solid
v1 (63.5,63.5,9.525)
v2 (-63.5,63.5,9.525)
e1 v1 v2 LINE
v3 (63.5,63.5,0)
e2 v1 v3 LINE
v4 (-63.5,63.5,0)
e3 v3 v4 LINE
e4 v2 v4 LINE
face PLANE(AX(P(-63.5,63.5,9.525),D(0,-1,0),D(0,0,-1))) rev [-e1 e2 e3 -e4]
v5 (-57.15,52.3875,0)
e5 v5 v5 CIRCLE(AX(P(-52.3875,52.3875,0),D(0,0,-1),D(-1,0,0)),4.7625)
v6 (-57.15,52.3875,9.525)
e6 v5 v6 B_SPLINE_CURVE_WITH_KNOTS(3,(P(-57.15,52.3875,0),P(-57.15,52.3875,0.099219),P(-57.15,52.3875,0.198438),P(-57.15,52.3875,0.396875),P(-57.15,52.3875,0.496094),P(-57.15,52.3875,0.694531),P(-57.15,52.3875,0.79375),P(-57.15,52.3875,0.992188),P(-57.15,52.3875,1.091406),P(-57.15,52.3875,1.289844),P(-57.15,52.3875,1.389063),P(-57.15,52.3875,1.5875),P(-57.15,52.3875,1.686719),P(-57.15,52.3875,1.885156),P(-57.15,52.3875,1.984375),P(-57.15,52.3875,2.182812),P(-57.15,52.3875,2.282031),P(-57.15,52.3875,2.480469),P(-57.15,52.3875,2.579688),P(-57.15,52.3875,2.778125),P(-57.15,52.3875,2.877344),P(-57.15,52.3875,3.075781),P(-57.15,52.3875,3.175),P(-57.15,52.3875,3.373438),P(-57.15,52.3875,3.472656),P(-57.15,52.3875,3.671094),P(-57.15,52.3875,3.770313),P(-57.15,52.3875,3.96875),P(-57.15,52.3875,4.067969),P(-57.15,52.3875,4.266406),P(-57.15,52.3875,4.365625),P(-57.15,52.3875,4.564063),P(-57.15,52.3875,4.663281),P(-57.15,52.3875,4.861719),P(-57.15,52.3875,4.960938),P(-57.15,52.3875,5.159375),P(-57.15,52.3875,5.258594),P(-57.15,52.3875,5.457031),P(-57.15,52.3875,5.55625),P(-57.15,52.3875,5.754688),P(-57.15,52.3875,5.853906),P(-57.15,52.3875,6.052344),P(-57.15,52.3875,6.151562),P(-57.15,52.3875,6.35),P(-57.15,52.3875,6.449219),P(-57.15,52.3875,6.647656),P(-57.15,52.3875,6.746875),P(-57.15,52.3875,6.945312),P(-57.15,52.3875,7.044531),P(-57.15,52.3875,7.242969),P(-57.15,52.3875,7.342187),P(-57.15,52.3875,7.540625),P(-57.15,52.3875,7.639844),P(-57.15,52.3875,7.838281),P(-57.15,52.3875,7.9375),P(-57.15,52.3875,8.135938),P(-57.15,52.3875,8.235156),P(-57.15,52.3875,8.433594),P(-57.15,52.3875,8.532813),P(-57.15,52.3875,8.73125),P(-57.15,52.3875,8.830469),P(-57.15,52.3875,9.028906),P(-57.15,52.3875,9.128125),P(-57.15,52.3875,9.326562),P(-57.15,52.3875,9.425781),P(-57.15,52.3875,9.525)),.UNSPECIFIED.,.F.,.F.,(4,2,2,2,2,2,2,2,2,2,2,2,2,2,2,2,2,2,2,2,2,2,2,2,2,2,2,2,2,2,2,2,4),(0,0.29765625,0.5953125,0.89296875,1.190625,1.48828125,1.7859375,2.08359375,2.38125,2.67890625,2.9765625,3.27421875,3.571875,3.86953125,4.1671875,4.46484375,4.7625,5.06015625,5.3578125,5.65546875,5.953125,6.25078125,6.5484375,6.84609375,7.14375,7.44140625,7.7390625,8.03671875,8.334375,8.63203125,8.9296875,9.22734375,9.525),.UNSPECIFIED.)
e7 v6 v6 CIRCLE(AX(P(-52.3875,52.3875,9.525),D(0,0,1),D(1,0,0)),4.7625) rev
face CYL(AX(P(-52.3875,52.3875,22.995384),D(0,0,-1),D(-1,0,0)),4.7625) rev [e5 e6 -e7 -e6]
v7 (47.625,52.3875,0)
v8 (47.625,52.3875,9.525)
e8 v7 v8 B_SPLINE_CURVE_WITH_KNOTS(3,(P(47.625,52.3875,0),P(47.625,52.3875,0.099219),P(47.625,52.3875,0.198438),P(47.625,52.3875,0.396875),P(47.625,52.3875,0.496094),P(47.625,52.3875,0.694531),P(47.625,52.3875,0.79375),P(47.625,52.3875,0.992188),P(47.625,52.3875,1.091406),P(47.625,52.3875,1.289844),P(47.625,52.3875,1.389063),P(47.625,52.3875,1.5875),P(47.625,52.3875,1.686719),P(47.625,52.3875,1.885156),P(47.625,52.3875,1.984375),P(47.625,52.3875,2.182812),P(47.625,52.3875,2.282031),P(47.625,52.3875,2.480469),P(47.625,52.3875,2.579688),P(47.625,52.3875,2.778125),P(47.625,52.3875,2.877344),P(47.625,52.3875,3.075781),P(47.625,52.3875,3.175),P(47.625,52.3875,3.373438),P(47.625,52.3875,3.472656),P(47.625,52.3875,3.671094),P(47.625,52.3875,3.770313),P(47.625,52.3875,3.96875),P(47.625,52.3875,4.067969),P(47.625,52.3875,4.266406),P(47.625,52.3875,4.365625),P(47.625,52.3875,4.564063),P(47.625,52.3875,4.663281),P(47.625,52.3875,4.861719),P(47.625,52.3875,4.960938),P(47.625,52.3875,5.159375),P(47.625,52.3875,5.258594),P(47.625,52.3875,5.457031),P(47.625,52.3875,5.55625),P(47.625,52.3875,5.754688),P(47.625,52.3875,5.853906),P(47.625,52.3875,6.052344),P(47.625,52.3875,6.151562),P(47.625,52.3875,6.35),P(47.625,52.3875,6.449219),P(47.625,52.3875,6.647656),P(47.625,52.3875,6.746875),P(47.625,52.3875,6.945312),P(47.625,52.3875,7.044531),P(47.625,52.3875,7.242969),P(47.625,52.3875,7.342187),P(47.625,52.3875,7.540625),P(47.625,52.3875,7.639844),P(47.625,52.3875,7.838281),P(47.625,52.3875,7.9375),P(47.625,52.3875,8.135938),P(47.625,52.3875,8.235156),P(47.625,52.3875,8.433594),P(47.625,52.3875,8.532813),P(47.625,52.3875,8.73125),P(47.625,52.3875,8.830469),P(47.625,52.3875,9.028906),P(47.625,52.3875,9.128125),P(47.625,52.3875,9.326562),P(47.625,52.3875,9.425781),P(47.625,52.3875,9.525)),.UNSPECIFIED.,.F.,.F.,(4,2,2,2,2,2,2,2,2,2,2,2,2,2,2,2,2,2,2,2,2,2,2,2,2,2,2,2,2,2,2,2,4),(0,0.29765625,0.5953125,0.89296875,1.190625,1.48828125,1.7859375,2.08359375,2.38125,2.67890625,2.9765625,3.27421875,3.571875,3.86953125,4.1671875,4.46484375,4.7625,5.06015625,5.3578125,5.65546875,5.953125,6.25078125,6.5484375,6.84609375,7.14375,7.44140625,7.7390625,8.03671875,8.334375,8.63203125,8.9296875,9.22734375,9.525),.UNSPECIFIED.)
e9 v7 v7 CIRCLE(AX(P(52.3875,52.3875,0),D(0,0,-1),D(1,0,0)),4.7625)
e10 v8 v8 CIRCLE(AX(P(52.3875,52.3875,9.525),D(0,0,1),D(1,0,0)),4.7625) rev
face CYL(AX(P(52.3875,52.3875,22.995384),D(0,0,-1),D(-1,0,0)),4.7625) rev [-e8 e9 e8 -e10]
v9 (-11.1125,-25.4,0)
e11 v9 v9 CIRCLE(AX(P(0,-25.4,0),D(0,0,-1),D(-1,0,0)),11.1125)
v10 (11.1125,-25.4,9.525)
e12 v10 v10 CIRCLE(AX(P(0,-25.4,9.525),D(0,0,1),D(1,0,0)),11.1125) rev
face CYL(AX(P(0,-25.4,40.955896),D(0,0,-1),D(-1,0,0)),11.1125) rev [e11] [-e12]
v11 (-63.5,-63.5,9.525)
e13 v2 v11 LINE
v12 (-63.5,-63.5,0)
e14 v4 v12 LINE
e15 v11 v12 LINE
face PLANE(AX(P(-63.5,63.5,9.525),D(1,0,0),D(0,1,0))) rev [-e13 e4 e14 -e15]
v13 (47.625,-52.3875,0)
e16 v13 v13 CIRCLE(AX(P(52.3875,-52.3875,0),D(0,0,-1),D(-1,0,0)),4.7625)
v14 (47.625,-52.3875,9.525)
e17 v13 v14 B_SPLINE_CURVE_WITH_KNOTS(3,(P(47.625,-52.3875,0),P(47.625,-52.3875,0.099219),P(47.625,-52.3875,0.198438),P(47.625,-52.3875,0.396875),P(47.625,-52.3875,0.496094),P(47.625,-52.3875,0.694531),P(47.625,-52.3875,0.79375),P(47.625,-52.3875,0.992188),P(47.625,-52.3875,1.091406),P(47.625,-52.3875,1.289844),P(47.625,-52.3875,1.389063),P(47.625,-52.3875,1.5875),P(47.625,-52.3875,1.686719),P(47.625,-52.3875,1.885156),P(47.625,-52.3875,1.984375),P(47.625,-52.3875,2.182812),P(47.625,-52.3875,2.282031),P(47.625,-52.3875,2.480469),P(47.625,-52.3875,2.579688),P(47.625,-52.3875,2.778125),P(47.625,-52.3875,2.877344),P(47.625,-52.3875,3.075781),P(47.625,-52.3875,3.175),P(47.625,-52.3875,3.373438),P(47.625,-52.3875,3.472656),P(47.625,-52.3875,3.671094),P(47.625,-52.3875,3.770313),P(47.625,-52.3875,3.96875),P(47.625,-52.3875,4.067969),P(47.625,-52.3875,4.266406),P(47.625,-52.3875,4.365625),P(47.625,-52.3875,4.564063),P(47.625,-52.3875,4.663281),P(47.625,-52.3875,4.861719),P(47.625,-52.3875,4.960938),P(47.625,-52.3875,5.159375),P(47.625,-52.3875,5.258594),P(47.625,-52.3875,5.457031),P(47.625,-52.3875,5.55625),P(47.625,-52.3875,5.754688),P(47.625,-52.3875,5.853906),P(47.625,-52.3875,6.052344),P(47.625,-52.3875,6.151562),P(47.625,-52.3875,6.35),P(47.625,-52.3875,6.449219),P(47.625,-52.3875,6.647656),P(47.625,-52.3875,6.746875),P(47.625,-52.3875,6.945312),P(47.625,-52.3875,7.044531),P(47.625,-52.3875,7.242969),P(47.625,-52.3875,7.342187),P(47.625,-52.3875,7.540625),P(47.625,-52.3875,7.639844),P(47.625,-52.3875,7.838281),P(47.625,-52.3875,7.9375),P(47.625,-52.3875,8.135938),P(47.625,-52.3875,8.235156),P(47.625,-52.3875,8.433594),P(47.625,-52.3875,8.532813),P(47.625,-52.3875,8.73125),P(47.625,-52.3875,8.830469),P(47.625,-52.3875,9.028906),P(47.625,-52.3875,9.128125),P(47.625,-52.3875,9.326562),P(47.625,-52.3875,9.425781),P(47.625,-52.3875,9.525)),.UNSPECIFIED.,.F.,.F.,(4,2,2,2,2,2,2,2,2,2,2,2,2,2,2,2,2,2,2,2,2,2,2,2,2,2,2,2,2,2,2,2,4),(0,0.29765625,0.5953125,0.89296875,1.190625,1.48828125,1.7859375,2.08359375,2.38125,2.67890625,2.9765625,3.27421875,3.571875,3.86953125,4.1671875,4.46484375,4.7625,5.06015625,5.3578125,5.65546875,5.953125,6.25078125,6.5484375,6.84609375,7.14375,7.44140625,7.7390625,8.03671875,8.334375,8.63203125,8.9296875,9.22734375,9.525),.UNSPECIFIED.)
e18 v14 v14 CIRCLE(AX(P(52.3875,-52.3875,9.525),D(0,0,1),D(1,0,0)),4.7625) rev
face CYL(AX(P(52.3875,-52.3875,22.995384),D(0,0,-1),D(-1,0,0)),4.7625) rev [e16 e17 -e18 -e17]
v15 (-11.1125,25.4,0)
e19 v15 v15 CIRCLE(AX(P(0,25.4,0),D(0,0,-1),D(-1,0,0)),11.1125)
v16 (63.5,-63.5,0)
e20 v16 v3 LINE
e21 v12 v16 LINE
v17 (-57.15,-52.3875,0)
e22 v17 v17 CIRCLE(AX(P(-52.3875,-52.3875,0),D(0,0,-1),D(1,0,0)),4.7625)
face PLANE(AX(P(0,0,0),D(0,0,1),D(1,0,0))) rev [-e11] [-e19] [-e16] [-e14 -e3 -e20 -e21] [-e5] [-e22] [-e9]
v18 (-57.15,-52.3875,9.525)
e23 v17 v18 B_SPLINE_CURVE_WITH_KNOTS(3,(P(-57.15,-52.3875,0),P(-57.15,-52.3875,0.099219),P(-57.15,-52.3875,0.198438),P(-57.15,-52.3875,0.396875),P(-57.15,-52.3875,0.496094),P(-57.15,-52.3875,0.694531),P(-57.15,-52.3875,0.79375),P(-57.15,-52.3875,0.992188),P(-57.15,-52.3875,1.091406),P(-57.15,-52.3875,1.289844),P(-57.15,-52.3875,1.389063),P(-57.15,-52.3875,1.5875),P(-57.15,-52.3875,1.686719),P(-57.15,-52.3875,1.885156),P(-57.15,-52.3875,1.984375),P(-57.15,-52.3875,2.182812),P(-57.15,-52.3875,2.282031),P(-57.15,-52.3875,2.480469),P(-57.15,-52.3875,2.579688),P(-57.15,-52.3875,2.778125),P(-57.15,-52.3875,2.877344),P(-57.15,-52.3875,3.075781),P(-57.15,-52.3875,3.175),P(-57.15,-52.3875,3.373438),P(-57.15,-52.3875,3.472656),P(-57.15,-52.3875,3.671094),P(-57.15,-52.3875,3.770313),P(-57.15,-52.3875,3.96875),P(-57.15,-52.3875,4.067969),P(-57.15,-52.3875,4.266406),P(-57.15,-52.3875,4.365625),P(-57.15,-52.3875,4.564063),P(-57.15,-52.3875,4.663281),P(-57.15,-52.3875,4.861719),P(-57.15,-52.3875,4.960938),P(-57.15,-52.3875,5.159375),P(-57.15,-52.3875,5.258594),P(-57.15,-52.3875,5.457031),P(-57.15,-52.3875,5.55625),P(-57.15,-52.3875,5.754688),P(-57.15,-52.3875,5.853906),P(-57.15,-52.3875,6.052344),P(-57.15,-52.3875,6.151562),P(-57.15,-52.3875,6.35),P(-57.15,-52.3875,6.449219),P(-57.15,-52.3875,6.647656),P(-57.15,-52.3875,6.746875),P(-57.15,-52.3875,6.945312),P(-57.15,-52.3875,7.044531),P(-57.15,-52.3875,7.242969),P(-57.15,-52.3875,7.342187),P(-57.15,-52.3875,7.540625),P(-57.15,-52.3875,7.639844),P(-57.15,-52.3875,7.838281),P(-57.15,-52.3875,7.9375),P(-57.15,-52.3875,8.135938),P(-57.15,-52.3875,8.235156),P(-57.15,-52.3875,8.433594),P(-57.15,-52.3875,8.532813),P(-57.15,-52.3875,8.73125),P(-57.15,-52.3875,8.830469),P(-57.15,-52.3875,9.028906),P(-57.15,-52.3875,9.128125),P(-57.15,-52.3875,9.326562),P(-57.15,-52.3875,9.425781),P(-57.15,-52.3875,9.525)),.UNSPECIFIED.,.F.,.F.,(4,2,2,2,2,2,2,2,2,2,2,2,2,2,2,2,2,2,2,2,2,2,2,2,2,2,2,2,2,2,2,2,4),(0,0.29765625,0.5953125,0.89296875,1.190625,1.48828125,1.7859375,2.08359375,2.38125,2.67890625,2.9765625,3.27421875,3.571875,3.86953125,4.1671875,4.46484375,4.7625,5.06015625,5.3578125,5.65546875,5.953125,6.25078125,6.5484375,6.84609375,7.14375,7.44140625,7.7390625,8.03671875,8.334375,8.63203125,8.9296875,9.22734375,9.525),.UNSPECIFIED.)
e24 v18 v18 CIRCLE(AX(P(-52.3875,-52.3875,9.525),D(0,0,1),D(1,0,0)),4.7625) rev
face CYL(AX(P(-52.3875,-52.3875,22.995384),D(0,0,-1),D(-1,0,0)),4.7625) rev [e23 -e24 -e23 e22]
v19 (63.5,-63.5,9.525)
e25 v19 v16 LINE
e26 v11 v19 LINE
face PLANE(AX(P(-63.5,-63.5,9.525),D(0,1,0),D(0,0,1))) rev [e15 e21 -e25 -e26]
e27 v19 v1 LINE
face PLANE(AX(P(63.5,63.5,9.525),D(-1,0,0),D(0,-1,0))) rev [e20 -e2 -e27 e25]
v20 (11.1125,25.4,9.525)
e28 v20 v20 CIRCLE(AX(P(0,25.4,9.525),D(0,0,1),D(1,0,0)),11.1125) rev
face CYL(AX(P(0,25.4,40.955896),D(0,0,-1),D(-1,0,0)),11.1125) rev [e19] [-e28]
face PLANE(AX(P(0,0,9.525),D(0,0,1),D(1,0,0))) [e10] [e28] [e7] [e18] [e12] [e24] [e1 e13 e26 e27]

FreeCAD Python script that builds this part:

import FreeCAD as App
import Part
import Sketcher
Q = App.Units.Quantity


def add_polygon(sketch, points):
    """Adds a closed chain of lines whose ends are joined by coincident constraints."""
    first, n = sketch.GeometryCount, len(points)
    for a, b in zip(points, points[1:] + points[:1]):
        sketch.addGeometry(Part.LineSegment(App.Vector(*a, 0), App.Vector(*b, 0)), False)
    for i in range(n):
        sketch.addConstraint(Sketcher.Constraint("Coincident", first + i, 2, first + (i + 1) % n, 1))

doc = App.newDocument("Part")
body = doc.addObject("PartDesign::Body", "Body")

# Sketch on XY plane
sketch1 = doc.addObject("Sketcher::SketchObject", "Sketch")
body.addObject(sketch1)
sketch1.AttachmentSupport = (doc.XY_Plane, [""])
sketch1.MapMode = "FlatFace"
add_polygon(sketch1, [(-64, 64), (-64, -64), (64, -64), (64, 64)])  # lines 0-3
sketch1.addConstraint([
    Sketcher.Constraint("Vertical", 0),
    Sketcher.Constraint("Horizontal", 1),
    Sketcher.Constraint("Vertical", 2),
    Sketcher.Constraint("Horizontal", 3),
    Sketcher.Constraint("Symmetric", 0, 2, 2, 2, -1, 1),
    Sketcher.Constraint("Equal", 3, 0),
    Sketcher.Constraint("DistanceX", 1, 1, 1, 2, Q("5 in")),
])
pad1 = doc.addObject("PartDesign::Pad", "Pad")
body.addObject(pad1)
pad1.Profile = sketch1
pad1.Length = Q("0.375 in")

# Sketch on XY plane
sketch2 = doc.addObject("Sketcher::SketchObject", "Sketch001")
body.addObject(sketch2)
sketch2.AttachmentSupport = (doc.XY_Plane, [""])
sketch2.MapMode = "FlatFace"
sketch2.addGeometry([
    Part.Circle(App.Vector(0, 25, 0), App.Vector(0, 0, 1), 11),
    Part.Circle(App.Vector(0, -25, 0), App.Vector(0, 0, 1), 11),
], False)
sketch2.addConstraint([
    Sketcher.Constraint("Equal", 0, 1),
    Sketcher.Constraint("Symmetric", 0, 3, 1, 3, -1, 1),
    Sketcher.Constraint("PointOnObject", 0, 3, -2),
    Sketcher.Constraint("Diameter", 0, Q("0.875 in")),
    Sketcher.Constraint("DistanceY", -1, 1, 0, 3, Q("1 in")),
])
pocket1 = doc.addObject("PartDesign::Pocket", "Pocket")
body.addObject(pocket1)
pocket1.Profile = sketch2
pocket1.Length = Q("0.375 in")
pocket1.Reversed = True

# Sketch on XY plane
sketch3 = doc.addObject("Sketcher::SketchObject", "Sketch002")
body.addObject(sketch3)
sketch3.AttachmentSupport = (doc.XY_Plane, [""])
sketch3.MapMode = "FlatFace"
sketch3.addGeometry([
    Part.Circle(App.Vector(-52.4, 52.4, 0), App.Vector(0, 0, 1), 4.8),
    Part.Circle(App.Vector(-52.4, -52.4, 0), App.Vector(0, 0, 1), 4.8),
    Part.Circle(App.Vector(52.4, 52.4, 0), App.Vector(0, 0, 1), 4.8),
    Part.Circle(App.Vector(52.4, -52.4, 0), App.Vector(0, 0, 1), 4.8),
], False)
sketch3.addConstraint([
    Sketcher.Constraint("Equal", 0, 1),
    Sketcher.Constraint("Equal", 1, 2),
    Sketcher.Constraint("Equal", 2, 3),
    Sketcher.Constraint("Symmetric", 1, 3, 2, 3, -1, 1),
    Sketcher.Constraint("Symmetric", 0, 3, 3, 3, -1, 1),
    Sketcher.Constraint("Symmetric", 0, 3, 2, 3, -2),
    Sketcher.Constraint("Diameter", 0, Q("0.375 in")),
    Sketcher.Constraint("DistanceX", 0, 3, -1, 1, Q("2.0625 in")),
    Sketcher.Constraint("DistanceY", -1, 1, 0, 3, Q("2.0625 in")),
])
pocket2 = doc.addObject("PartDesign::Pocket", "Pocket001")
body.addObject(pocket2)
pocket2.Profile = sketch3
pocket2.Length = Q("0.375 in")
pocket2.Reversed = True

doc.recompute()
